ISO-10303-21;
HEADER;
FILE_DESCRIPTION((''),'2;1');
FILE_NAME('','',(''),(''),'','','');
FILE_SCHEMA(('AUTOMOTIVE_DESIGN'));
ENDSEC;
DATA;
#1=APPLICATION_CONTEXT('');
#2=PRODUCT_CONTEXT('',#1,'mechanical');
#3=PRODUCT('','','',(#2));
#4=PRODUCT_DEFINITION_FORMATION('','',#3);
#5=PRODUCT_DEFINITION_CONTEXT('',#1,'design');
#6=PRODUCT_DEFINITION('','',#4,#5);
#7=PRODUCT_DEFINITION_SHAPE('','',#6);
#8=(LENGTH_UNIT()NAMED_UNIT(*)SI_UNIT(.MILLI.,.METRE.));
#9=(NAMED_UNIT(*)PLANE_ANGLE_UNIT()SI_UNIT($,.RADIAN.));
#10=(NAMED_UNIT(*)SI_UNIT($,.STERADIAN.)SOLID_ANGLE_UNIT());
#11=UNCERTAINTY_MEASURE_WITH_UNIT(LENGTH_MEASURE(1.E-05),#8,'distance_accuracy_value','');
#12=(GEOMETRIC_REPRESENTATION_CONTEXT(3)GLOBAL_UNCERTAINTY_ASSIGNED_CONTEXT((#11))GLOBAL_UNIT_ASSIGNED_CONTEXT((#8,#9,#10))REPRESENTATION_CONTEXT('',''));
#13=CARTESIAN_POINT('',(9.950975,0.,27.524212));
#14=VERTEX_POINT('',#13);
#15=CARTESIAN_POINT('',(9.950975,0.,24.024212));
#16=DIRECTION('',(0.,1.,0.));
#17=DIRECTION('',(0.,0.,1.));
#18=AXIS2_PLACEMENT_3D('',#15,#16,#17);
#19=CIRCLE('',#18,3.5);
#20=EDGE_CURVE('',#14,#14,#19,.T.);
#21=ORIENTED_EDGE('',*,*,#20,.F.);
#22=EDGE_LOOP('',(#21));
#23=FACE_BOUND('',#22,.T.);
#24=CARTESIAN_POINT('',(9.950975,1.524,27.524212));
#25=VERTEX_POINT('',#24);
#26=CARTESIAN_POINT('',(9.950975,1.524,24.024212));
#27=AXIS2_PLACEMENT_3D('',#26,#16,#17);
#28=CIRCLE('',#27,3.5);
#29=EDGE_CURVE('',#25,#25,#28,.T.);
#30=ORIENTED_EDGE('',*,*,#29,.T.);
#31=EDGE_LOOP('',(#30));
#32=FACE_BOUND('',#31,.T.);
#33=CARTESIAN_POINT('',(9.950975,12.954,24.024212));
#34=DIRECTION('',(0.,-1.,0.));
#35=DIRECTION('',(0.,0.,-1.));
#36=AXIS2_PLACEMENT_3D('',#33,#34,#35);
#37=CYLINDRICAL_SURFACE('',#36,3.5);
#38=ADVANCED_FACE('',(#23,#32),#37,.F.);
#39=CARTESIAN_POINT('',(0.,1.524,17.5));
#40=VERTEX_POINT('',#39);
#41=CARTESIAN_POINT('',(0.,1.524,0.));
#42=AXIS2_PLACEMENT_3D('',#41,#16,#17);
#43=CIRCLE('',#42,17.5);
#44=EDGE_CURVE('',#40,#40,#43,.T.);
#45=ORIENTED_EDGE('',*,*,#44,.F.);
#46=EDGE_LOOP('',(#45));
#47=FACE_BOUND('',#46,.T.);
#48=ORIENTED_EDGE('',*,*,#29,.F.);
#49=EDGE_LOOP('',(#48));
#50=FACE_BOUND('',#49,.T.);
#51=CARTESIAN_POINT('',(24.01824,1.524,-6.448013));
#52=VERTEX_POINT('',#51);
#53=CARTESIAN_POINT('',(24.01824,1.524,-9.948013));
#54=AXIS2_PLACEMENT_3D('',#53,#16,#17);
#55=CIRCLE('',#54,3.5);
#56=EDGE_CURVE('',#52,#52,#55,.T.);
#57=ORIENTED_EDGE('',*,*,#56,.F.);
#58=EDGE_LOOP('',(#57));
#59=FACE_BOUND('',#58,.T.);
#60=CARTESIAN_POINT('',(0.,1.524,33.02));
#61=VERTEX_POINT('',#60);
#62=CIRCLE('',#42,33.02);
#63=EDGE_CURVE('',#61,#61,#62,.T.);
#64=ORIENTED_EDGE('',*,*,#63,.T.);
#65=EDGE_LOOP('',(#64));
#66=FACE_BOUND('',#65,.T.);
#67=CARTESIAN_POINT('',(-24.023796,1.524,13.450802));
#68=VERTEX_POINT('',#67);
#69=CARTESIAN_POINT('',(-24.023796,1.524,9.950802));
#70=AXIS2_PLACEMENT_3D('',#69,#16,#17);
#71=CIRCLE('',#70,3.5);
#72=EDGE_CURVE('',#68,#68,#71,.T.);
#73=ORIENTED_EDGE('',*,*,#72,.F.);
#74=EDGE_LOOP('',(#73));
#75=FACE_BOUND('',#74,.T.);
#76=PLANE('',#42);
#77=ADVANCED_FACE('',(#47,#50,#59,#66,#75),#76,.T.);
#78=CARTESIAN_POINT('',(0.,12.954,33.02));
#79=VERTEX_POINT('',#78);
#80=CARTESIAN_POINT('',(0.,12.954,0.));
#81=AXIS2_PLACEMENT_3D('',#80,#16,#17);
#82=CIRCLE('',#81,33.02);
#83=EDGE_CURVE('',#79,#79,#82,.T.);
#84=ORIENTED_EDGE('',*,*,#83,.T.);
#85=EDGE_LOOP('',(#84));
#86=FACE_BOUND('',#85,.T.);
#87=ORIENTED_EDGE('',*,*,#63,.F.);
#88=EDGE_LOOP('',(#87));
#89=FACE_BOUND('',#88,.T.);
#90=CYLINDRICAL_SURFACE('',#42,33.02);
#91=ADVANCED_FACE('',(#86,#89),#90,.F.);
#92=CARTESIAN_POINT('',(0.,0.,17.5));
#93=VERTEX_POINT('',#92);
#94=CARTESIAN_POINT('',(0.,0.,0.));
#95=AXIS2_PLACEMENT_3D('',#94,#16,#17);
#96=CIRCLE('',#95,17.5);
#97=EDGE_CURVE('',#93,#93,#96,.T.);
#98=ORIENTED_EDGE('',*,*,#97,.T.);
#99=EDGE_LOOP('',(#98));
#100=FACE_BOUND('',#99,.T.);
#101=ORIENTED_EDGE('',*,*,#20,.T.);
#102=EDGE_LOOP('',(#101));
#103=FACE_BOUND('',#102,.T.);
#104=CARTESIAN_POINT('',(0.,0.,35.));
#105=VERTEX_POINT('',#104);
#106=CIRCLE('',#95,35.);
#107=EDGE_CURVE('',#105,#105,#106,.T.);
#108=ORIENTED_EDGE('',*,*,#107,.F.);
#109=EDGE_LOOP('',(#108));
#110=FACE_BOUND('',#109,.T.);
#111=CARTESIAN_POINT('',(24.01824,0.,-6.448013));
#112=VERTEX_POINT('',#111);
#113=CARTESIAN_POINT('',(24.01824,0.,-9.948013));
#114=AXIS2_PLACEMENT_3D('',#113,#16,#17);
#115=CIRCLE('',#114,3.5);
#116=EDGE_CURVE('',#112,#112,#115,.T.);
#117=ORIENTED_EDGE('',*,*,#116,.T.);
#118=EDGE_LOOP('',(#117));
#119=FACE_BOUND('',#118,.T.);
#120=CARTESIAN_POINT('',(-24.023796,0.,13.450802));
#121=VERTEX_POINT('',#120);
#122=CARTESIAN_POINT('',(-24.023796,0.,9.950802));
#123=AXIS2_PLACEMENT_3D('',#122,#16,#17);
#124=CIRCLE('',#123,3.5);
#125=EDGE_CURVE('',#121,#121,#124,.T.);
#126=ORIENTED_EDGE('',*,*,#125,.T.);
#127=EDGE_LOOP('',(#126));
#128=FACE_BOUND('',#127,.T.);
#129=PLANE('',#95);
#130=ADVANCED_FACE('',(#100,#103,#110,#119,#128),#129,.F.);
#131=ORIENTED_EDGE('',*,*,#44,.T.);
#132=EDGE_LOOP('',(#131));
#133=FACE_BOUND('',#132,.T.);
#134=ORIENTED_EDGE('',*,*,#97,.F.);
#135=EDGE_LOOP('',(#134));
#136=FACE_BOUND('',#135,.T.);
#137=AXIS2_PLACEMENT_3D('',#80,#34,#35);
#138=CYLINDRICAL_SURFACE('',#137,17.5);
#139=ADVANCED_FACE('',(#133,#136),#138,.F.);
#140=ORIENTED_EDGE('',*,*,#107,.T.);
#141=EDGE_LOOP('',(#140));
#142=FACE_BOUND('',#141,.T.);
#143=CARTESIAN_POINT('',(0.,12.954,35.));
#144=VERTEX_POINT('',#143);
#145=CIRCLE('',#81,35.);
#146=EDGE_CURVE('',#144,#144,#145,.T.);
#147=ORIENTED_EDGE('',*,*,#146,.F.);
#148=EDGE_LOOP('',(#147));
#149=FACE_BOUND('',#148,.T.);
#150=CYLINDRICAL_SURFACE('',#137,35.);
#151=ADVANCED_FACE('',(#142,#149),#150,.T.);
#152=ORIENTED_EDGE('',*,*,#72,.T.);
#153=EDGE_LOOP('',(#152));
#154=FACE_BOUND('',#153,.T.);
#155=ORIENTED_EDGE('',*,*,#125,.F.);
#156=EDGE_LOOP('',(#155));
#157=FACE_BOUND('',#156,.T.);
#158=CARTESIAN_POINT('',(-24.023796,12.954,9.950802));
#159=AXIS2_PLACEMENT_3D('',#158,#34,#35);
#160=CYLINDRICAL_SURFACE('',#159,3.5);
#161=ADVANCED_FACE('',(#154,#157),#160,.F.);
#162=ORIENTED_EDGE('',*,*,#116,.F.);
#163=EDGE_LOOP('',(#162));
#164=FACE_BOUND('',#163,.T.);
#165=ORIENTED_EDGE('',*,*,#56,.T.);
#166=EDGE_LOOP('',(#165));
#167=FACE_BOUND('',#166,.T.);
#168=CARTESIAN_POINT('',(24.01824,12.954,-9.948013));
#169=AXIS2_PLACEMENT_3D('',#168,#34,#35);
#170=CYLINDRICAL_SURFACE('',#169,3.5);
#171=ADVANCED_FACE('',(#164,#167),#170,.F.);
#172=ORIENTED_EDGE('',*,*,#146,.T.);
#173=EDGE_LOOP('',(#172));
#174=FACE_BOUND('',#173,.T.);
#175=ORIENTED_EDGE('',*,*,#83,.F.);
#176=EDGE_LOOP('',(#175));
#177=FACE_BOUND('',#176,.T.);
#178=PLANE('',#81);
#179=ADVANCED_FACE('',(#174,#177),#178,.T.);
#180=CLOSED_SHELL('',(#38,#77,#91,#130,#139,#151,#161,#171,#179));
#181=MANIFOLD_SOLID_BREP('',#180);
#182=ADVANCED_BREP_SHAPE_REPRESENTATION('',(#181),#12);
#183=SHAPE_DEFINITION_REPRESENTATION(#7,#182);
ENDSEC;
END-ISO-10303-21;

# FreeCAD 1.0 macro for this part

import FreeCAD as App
import Part
import Sketcher

doc = App.newDocument("Part")
body = doc.addObject("PartDesign::Body", "Body")

sketch1 = body.newObject("Sketcher::SketchObject", "Sketch")
sketch1.AttachmentSupport = (doc.getObject("XZ_Plane"), [""])
sketch1.MapMode = "FlatFace"
sketch1.addGeometry([
    Part.Circle(App.Vector(0, 0, 0), App.Vector(0, 0, 1), 35),
    Part.Circle(App.Vector(-24, 10, 0), App.Vector(0, 0, 1), 3.5),
    Part.Circle(App.Vector(10, 24, 0), App.Vector(0, 0, 1), 3.5),
    Part.Circle(App.Vector(0, 0, 0), App.Vector(0, 0, 1), 17.5),
    Part.Circle(App.Vector(24, -9.9, 0), App.Vector(0, 0, 1), 3.5),
], False)
sketch1.addConstraint([
    Sketcher.Constraint("Coincident", 0, 3, -1, 1),
    Sketcher.Constraint("Coincident", 3, 3, -1, 1),
    Sketcher.Constraint("Equal", 1, 2),
    Sketcher.Constraint("Equal", 2, 4),
    Sketcher.Constraint("Diameter", 0, 70.0),
    Sketcher.Constraint("Diameter", 1, 7.0),
    Sketcher.Constraint("Diameter", 3, 35.0),
    Sketcher.Constraint("DistanceY", -1, 1, 1, 3, 9.950802),
    Sketcher.Constraint("DistanceX", -1, 1, 4, 3, 24.01824),
    Sketcher.Constraint("DistanceX", 1, 3, 2, 3, 33.97477),
    Sketcher.Constraint("DistanceY", 1, 3, 2, 3, 14.07341),
    Sketcher.Constraint("DistanceX", 1, 3, -1, 1, 24.023796),
    Sketcher.Constraint("DistanceY", 4, 3, -1, 1, 9.948013),
])
pad1 = body.newObject("PartDesign::Pad", "Pad")
pad1.Profile = sketch1
pad1.Length = 12.954
pad1.Reversed = True

sketch2 = body.newObject("Sketcher::SketchObject", "Sketch001")
sketch2.AttachmentSupport = (doc.getObject("XZ_Plane"), [""])
sketch2.MapMode = "FlatFace"
sketch2.AttachmentOffset = App.Placement(App.Vector(0, 0, -12.954), App.Rotation())
sketch2.addGeometry(Part.Circle(App.Vector(0, 0, 0), App.Vector(0, 0, 1), 33), False)
sketch2.addConstraint([
    Sketcher.Constraint("Coincident", 0, 3, -1, 1),
    Sketcher.Constraint("Diameter", 0, 66.04),
])
pocket1 = body.newObject("PartDesign::Pocket", "Pocket")
pocket1.Profile = sketch2
pocket1.Length = 11.43
pocket1.Reversed = True

doc.recompute()
